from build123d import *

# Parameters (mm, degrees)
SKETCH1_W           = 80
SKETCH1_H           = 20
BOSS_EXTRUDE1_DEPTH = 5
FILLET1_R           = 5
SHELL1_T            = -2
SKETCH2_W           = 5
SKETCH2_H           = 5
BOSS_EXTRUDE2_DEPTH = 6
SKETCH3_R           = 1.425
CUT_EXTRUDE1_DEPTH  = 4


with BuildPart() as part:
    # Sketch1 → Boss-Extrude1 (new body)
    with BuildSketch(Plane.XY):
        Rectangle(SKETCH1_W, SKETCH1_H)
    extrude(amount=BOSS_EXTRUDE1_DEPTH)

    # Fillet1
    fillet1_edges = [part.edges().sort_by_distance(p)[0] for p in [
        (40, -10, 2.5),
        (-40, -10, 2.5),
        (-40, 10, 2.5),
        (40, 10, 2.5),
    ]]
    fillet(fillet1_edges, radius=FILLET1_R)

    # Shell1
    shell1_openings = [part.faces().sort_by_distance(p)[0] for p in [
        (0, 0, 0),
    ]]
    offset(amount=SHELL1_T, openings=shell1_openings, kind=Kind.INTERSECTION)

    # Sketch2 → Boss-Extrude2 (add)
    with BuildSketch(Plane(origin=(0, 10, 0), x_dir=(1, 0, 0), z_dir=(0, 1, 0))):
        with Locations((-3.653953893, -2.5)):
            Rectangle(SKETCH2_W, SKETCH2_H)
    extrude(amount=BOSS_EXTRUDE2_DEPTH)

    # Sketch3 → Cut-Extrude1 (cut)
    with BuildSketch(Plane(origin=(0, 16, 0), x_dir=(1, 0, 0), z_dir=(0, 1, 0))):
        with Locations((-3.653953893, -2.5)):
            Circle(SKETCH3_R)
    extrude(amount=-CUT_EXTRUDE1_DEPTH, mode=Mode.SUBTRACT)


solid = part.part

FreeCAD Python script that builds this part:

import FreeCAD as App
import Part
import Sketcher


def edges_at(feature, points):
    """Names of the edges that pass closest to the given points."""
    edges = feature.Shape.Edges
    near = lambda p: min(range(len(edges)), key=lambda i: edges[i].distToShape(Part.Vertex(*p))[0])
    return sorted({f"Edge{near(p) + 1}" for p in points})


def faces_at(feature, points):
    """Names of the faces that lie closest to the given points."""
    faces = feature.Shape.Faces
    near = lambda p: min(range(len(faces)), key=lambda i: faces[i].distToShape(Part.Vertex(*p))[0])
    return sorted({f"Face{near(p) + 1}" for p in points})


def add_polygon(sketch, points):
    """Adds a closed chain of lines whose ends are joined by coincident constraints."""
    first, n = sketch.GeometryCount, len(points)
    for a, b in zip(points, points[1:] + points[:1]):
        sketch.addGeometry(Part.LineSegment(App.Vector(*a, 0), App.Vector(*b, 0)), False)
    for i in range(n):
        sketch.addConstraint(Sketcher.Constraint("Coincident", first + i, 2, first + (i + 1) % n, 1))

doc = App.newDocument("Part")
body = doc.addObject("PartDesign::Body", "Body")

sketch1 = body.newObject("Sketcher::SketchObject", "Sketch")
sketch1.AttachmentSupport = (doc.getObject("XY_Plane"), [""])
sketch1.MapMode = "FlatFace"
add_polygon(sketch1, [(-40, 10), (-40, -10), (40, -10), (40, 10)])
sketch1.addConstraint(Sketcher.Constraint("Vertical", 0))
sketch1.addConstraint(Sketcher.Constraint("Horizontal", 1))
sketch1.addConstraint(Sketcher.Constraint("Vertical", 2))
sketch1.addConstraint(Sketcher.Constraint("Horizontal", 3))
sketch1.addConstraint(Sketcher.Constraint("Symmetric", 0, 2, 2, 2, -1, 1))
sketch1.addConstraint(Sketcher.Constraint("DistanceX", 1, 1, 1, 2, 80.0))
sketch1.addConstraint(Sketcher.Constraint("DistanceY", 0, 2, 0, 1, 20.0))
pad1 = body.newObject("PartDesign::Pad", "Pad")
pad1.Profile = sketch1
pad1.Length = 5
doc.recompute()

fillet = body.newObject("PartDesign::Fillet", "Fillet")
fillet.Base = (pad1, edges_at(pad1, [
    (40, -10, 2.5),
    (-40, -10, 2.5),
    (-40, 10, 2.5),
    (40, 10, 2.5),
]))
fillet.Radius = 5
doc.recompute()

thickness = body.newObject("PartDesign::Thickness", "Thickness")
thickness.Base = (fillet, faces_at(fillet, [(0, 0, 0)]))
thickness.Value = 2
thickness.Reversed = True
thickness.Join = "Intersection"

sketch2 = body.newObject("Sketcher::SketchObject", "Sketch001")
sketch2.AttachmentSupport = (doc.getObject("XZ_Plane"), [""])
sketch2.MapMode = "FlatFace"
sketch2.AttachmentOffset = App.Placement(App.Vector(0, 0, -10), App.Rotation())
add_polygon(sketch2, [(-6.153954, 0), (-6.153954, 5), (-1.153954, 5), (-1.153954, 0)])
sketch2.addConstraint(Sketcher.Constraint("Vertical", 0))
sketch2.addConstraint(Sketcher.Constraint("Horizontal", 1))
sketch2.addConstraint(Sketcher.Constraint("Vertical", 2))
sketch2.addConstraint(Sketcher.Constraint("Horizontal", 3))
sketch2.addConstraint(Sketcher.Constraint("PointOnObject", 2, 2, -1))
sketch2.addConstraint(Sketcher.Constraint("Equal", 3, 0))
sketch2.addConstraint(Sketcher.Constraint("DistanceX", 1, 1, 1, 2, 5.0))
sketch2.addConstraint(Sketcher.Constraint("DistanceX", 0, 2, -1, 1, 6.153954))
pad2 = body.newObject("PartDesign::Pad", "Pad001")
pad2.Profile = sketch2
pad2.Length = 6
pad2.Reversed = True

sketch3 = body.newObject("Sketcher::SketchObject", "Sketch002")
sketch3.AttachmentSupport = (doc.getObject("XZ_Plane"), [""])
sketch3.MapMode = "FlatFace"
sketch3.AttachmentOffset = App.Placement(App.Vector(0, 0, -16), App.Rotation())
sketch3.addGeometry(Part.Circle(App.Vector(-3.653954, 2.5, 0), App.Vector(0, 0, 1), 1.425), False)
sketch3.addConstraint(Sketcher.Constraint("Diameter", 0, 2.85))
sketch3.addConstraint(Sketcher.Constraint("DistanceY", -1, 1, 0, 3, 2.5))
sketch3.addConstraint(Sketcher.Constraint("DistanceX", 0, 3, -1, 1, 3.653954))
pocket1 = body.newObject("PartDesign::Pocket", "Pocket")
pocket1.Profile = sketch3
pocket1.Length = 4
pocket1.Reversed = True

doc.recompute()
